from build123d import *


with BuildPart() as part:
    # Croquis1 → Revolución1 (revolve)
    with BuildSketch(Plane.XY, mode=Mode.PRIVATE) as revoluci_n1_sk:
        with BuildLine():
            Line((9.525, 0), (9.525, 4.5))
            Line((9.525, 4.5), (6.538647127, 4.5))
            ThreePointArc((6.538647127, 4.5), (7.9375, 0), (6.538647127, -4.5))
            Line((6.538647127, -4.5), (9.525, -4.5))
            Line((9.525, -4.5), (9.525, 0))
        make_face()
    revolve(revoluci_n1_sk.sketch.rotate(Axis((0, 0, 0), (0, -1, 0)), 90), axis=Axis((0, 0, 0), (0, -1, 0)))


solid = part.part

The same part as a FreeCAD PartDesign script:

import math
import FreeCAD as App
import Part
import Sketcher
from FreeCAD import Vector
Q = App.Units.Quantity

doc = App.newDocument("Part")
body = doc.addObject("PartDesign::Body", "Body")

sketch1 = body.newObject("Sketcher::SketchObject", "Sketch")
sketch1.AttachmentSupport = (doc.getObject("XY_Plane"), [""])
sketch1.MapMode = "FlatFace"
sketch1.addGeometry([
    Part.LineSegment(Vector(9.5, 4.5, 0), Vector(6.5, 4.5, 0)),
    Part.ArcOfCircle(Part.Circle(Vector(0, 0, 0), Vector(0, 0, 1), 7.9), math.radians(-35), math.radians(35)),
    Part.LineSegment(Vector(6.5, -4.5, 0), Vector(9.5, -4.5, 0)),
    Part.LineSegment(Vector(9.5, -4.5, 0), Vector(9.5, 4.5, 0)),
], False)
sketch1.addConstraint([
    Sketcher.Constraint("Coincident", 0, 2, 1, 2),
    Sketcher.Constraint("Coincident", 1, 1, 2, 1),
    Sketcher.Constraint("Coincident", 2, 2, 3, 1),
    Sketcher.Constraint("Coincident", 3, 2, 0, 1),
    Sketcher.Constraint("Horizontal", 0),
    Sketcher.Constraint("Horizontal", 2),
    Sketcher.Constraint("Vertical", 3),
    Sketcher.Constraint("Coincident", 1, 3, -1, 1),
    Sketcher.Constraint("Vertical", 0, 2, 1, 1),
    Sketcher.Constraint("DistanceY", 3, 1, 3, 2, Q("9 mm")),
    Sketcher.Constraint("Radius", 1, Q("7.9375 mm")),
    Sketcher.Constraint("DistanceX", -1, 1, 2, 2, Q("9.525 mm")),
])
revolution = body.newObject("PartDesign::Revolution", "Revolution")
revolution.Profile = sketch1
revolution.ReferenceAxis = (sketch1, ["V_Axis"])
revolution.Angle = 360

doc.recompute()
